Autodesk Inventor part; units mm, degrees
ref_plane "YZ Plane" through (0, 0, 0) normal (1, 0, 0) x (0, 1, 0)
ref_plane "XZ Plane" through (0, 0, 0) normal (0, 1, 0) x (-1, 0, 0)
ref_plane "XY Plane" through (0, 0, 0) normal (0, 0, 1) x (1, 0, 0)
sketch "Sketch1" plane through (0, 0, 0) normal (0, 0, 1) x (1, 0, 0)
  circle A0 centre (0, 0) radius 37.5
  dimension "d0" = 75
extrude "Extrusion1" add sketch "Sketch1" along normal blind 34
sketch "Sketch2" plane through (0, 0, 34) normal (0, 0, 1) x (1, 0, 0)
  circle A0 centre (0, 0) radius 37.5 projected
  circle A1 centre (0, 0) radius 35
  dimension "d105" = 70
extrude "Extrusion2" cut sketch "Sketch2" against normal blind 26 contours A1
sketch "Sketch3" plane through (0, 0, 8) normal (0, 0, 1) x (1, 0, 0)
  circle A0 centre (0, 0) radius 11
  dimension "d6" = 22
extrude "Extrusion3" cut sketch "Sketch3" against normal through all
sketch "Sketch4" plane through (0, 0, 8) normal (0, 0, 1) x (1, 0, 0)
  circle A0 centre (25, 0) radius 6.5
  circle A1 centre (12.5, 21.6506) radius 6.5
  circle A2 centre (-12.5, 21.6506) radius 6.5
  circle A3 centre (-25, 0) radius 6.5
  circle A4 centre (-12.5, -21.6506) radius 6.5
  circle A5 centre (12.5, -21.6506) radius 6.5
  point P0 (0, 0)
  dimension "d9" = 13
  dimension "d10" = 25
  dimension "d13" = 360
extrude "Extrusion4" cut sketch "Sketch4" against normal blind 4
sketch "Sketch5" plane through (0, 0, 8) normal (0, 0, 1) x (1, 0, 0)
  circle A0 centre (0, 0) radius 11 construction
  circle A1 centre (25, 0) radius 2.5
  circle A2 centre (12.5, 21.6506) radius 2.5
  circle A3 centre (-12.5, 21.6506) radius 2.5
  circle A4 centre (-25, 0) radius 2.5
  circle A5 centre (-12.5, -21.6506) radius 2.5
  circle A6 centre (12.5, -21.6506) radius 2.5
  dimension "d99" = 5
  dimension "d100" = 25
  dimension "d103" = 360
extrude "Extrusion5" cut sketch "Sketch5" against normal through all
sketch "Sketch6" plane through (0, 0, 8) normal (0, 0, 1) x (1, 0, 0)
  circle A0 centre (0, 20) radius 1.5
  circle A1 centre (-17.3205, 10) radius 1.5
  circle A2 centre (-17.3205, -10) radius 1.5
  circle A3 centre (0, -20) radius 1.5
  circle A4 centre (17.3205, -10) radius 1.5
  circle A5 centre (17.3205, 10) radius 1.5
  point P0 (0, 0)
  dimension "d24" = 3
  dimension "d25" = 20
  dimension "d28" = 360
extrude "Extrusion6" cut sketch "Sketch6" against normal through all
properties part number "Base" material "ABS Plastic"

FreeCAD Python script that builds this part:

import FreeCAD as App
import Part
import Sketcher
from FreeCAD import Vector

doc = App.newDocument("Part")
body = doc.addObject("PartDesign::Body", "Body")

# Sketch on XY plane
sketch1 = body.newObject("Sketcher::SketchObject", "Sketch")
sketch1.AttachmentSupport = (doc.getObject("XY_Plane"), [""])
sketch1.MapMode = "FlatFace"
sketch1.addGeometry(Part.Circle(Vector(0, 0, 0), Vector(0, 0, 1), 38), False)
sketch1.addConstraint(Sketcher.Constraint("Coincident", 0, 3, -1, 1))
sketch1.addConstraint(Sketcher.Constraint("Diameter", 0, 75.0))
pad1 = body.newObject("PartDesign::Pad", "Pad")
pad1.Profile = sketch1
pad1.Length = 34

# Sketch on XY plane
sketch2 = body.newObject("Sketcher::SketchObject", "Sketch001")
sketch2.AttachmentSupport = (doc.getObject("XY_Plane"), [""])
sketch2.MapMode = "FlatFace"
sketch2.AttachmentOffset = App.Placement(Vector(0, 0, 34), App.Rotation())
sketch2.addGeometry(Part.Circle(Vector(0, 0, 0), Vector(0, 0, 1), 35), False)
sketch2.addConstraint(Sketcher.Constraint("Coincident", 0, 3, -1, 1))
sketch2.addConstraint(Sketcher.Constraint("Diameter", 0, 70.0))
pocket1 = body.newObject("PartDesign::Pocket", "Pocket")
pocket1.Profile = sketch2
pocket1.Length = 26

# Sketch on XY plane
sketch3 = body.newObject("Sketcher::SketchObject", "Sketch002")
sketch3.AttachmentSupport = (doc.getObject("XY_Plane"), [""])
sketch3.MapMode = "FlatFace"
sketch3.AttachmentOffset = App.Placement(Vector(0, 0, 8), App.Rotation())
sketch3.addGeometry(Part.Circle(Vector(0, 0, 0), Vector(0, 0, 1), 11), False)
sketch3.addConstraint(Sketcher.Constraint("Coincident", 0, 3, -1, 1))
sketch3.addConstraint(Sketcher.Constraint("Diameter", 0, 22.0))
pocket2 = body.newObject("PartDesign::Pocket", "Pocket001")
pocket2.Profile = sketch3
pocket2.Type = "ThroughAll"

# Sketch on XY plane
sketch4 = body.newObject("Sketcher::SketchObject", "Sketch003")
sketch4.AttachmentSupport = (doc.getObject("XY_Plane"), [""])
sketch4.MapMode = "FlatFace"
sketch4.AttachmentOffset = App.Placement(Vector(0, 0, 8), App.Rotation())
sketch4.addGeometry(Part.Circle(Vector(25, 0, 0), Vector(0, 0, 1), 6), False)
sketch4.addGeometry(Part.Circle(Vector(12, 22, 0), Vector(0, 0, 1), 6), False)
sketch4.addGeometry(Part.Circle(Vector(-12, 22, 0), Vector(0, 0, 1), 6), False)
sketch4.addGeometry(Part.Circle(Vector(-25, 0, 0), Vector(0, 0, 1), 6), False)
sketch4.addGeometry(Part.Circle(Vector(-12, -22, 0), Vector(0, 0, 1), 6), False)
sketch4.addGeometry(Part.Circle(Vector(12, -22, 0), Vector(0, 0, 1), 6), False)
sketch4.addConstraint(Sketcher.Constraint("Equal", 0, 1))
sketch4.addConstraint(Sketcher.Constraint("Equal", 1, 2))
sketch4.addConstraint(Sketcher.Constraint("Equal", 2, 3))
sketch4.addConstraint(Sketcher.Constraint("Equal", 3, 4))
sketch4.addConstraint(Sketcher.Constraint("Equal", 4, 5))
sketch4.addConstraint(Sketcher.Constraint("Symmetric", 0, 3, 3, 3, -1, 1))
sketch4.addConstraint(Sketcher.Constraint("Symmetric", 1, 3, 4, 3, -1, 1))
sketch4.addConstraint(Sketcher.Constraint("Symmetric", 2, 3, 5, 3, -1, 1))
sketch4.addConstraint(Sketcher.Constraint("Symmetric", 1, 3, 2, 3, -2))
sketch4.addConstraint(Sketcher.Constraint("PointOnObject", 0, 3, -1))
sketch4.addConstraint(Sketcher.Constraint("Diameter", 0, 13.0))
sketch4.addConstraint(Sketcher.Constraint("DistanceX", -1, 1, 0, 3, 25.0))
sketch4.addConstraint(Sketcher.Constraint("DistanceX", 2, 3, 1, 3, 25.0))
sketch4.addConstraint(Sketcher.Constraint("DistanceY", -1, 1, 1, 3, 21.6506))
pocket3 = body.newObject("PartDesign::Pocket", "Pocket002")
pocket3.Profile = sketch4
pocket3.Length = 4

# Sketch on XY plane
sketch5 = body.newObject("Sketcher::SketchObject", "Sketch004")
sketch5.AttachmentSupport = (doc.getObject("XY_Plane"), [""])
sketch5.MapMode = "FlatFace"
sketch5.AttachmentOffset = App.Placement(Vector(0, 0, 8), App.Rotation())
sketch5.addGeometry(Part.Circle(Vector(25, 0, 0), Vector(0, 0, 1), 2.5), False)
sketch5.addGeometry(Part.Circle(Vector(12.5, 21.7, 0), Vector(0, 0, 1), 2.5), False)
sketch5.addGeometry(Part.Circle(Vector(-12.5, 21.7, 0), Vector(0, 0, 1), 2.5), False)
sketch5.addGeometry(Part.Circle(Vector(-25, 0, 0), Vector(0, 0, 1), 2.5), False)
sketch5.addGeometry(Part.Circle(Vector(-12.5, -21.7, 0), Vector(0, 0, 1), 2.5), False)
sketch5.addGeometry(Part.Circle(Vector(12.5, -21.7, 0), Vector(0, 0, 1), 2.5), False)
sketch5.addConstraint(Sketcher.Constraint("Equal", 0, 1))
sketch5.addConstraint(Sketcher.Constraint("Equal", 1, 2))
sketch5.addConstraint(Sketcher.Constraint("Equal", 2, 3))
sketch5.addConstraint(Sketcher.Constraint("Equal", 3, 4))
sketch5.addConstraint(Sketcher.Constraint("Equal", 4, 5))
sketch5.addConstraint(Sketcher.Constraint("Symmetric", 0, 3, 3, 3, -1, 1))
sketch5.addConstraint(Sketcher.Constraint("Symmetric", 1, 3, 4, 3, -1, 1))
sketch5.addConstraint(Sketcher.Constraint("Symmetric", 2, 3, 5, 3, -1, 1))
sketch5.addConstraint(Sketcher.Constraint("Symmetric", 1, 3, 2, 3, -2))
sketch5.addConstraint(Sketcher.Constraint("PointOnObject", 0, 3, -1))
sketch5.addConstraint(Sketcher.Constraint("Diameter", 0, 5.0))
sketch5.addConstraint(Sketcher.Constraint("DistanceX", -1, 1, 0, 3, 25.0))
sketch5.addConstraint(Sketcher.Constraint("DistanceX", 2, 3, 1, 3, 25.0))
sketch5.addConstraint(Sketcher.Constraint("DistanceY", -1, 1, 1, 3, 21.6506))
pocket4 = body.newObject("PartDesign::Pocket", "Pocket003")
pocket4.Profile = sketch5
pocket4.Type = "ThroughAll"

# Sketch on XY plane
sketch6 = body.newObject("Sketcher::SketchObject", "Sketch005")
sketch6.AttachmentSupport = (doc.getObject("XY_Plane"), [""])
sketch6.MapMode = "FlatFace"
sketch6.AttachmentOffset = App.Placement(Vector(0, 0, 8), App.Rotation())
sketch6.addGeometry(Part.Circle(Vector(0, 20, 0), Vector(0, 0, 1), 1.5), False)
sketch6.addGeometry(Part.Circle(Vector(-17.3, 10, 0), Vector(0, 0, 1), 1.5), False)
sketch6.addGeometry(Part.Circle(Vector(-17.3, -10, 0), Vector(0, 0, 1), 1.5), False)
sketch6.addGeometry(Part.Circle(Vector(0, -20, 0), Vector(0, 0, 1), 1.5), False)
sketch6.addGeometry(Part.Circle(Vector(17.3, -10, 0), Vector(0, 0, 1), 1.5), False)
sketch6.addGeometry(Part.Circle(Vector(17.3, 10, 0), Vector(0, 0, 1), 1.5), False)
sketch6.addConstraint(Sketcher.Constraint("Equal", 0, 1))
sketch6.addConstraint(Sketcher.Constraint("Equal", 1, 2))
sketch6.addConstraint(Sketcher.Constraint("Equal", 2, 3))
sketch6.addConstraint(Sketcher.Constraint("Equal", 3, 4))
sketch6.addConstraint(Sketcher.Constraint("Equal", 4, 5))
sketch6.addConstraint(Sketcher.Constraint("Symmetric", 0, 3, 3, 3, -1, 1))
sketch6.addConstraint(Sketcher.Constraint("Symmetric", 1, 3, 4, 3, -1, 1))
sketch6.addConstraint(Sketcher.Constraint("Symmetric", 2, 3, 5, 3, -1, 1))
sketch6.addConstraint(Sketcher.Constraint("Symmetric", 2, 3, 4, 3, -2))
sketch6.addConstraint(Sketcher.Constraint("PointOnObject", 0, 3, -2))
sketch6.addConstraint(Sketcher.Constraint("Diameter", 0, 3.0))
sketch6.addConstraint(Sketcher.Constraint("DistanceY", -1, 1, 0, 3, 20.0))
sketch6.addConstraint(Sketcher.Constraint("DistanceY", 2, 3, 1, 3, 20.0))
sketch6.addConstraint(Sketcher.Constraint("DistanceX", 2, 3, 4, 3, 34.641))
pocket5 = body.newObject("PartDesign::Pocket", "Pocket004")
pocket5.Profile = sketch6
pocket5.Type = "ThroughAll"

doc.recompute()
